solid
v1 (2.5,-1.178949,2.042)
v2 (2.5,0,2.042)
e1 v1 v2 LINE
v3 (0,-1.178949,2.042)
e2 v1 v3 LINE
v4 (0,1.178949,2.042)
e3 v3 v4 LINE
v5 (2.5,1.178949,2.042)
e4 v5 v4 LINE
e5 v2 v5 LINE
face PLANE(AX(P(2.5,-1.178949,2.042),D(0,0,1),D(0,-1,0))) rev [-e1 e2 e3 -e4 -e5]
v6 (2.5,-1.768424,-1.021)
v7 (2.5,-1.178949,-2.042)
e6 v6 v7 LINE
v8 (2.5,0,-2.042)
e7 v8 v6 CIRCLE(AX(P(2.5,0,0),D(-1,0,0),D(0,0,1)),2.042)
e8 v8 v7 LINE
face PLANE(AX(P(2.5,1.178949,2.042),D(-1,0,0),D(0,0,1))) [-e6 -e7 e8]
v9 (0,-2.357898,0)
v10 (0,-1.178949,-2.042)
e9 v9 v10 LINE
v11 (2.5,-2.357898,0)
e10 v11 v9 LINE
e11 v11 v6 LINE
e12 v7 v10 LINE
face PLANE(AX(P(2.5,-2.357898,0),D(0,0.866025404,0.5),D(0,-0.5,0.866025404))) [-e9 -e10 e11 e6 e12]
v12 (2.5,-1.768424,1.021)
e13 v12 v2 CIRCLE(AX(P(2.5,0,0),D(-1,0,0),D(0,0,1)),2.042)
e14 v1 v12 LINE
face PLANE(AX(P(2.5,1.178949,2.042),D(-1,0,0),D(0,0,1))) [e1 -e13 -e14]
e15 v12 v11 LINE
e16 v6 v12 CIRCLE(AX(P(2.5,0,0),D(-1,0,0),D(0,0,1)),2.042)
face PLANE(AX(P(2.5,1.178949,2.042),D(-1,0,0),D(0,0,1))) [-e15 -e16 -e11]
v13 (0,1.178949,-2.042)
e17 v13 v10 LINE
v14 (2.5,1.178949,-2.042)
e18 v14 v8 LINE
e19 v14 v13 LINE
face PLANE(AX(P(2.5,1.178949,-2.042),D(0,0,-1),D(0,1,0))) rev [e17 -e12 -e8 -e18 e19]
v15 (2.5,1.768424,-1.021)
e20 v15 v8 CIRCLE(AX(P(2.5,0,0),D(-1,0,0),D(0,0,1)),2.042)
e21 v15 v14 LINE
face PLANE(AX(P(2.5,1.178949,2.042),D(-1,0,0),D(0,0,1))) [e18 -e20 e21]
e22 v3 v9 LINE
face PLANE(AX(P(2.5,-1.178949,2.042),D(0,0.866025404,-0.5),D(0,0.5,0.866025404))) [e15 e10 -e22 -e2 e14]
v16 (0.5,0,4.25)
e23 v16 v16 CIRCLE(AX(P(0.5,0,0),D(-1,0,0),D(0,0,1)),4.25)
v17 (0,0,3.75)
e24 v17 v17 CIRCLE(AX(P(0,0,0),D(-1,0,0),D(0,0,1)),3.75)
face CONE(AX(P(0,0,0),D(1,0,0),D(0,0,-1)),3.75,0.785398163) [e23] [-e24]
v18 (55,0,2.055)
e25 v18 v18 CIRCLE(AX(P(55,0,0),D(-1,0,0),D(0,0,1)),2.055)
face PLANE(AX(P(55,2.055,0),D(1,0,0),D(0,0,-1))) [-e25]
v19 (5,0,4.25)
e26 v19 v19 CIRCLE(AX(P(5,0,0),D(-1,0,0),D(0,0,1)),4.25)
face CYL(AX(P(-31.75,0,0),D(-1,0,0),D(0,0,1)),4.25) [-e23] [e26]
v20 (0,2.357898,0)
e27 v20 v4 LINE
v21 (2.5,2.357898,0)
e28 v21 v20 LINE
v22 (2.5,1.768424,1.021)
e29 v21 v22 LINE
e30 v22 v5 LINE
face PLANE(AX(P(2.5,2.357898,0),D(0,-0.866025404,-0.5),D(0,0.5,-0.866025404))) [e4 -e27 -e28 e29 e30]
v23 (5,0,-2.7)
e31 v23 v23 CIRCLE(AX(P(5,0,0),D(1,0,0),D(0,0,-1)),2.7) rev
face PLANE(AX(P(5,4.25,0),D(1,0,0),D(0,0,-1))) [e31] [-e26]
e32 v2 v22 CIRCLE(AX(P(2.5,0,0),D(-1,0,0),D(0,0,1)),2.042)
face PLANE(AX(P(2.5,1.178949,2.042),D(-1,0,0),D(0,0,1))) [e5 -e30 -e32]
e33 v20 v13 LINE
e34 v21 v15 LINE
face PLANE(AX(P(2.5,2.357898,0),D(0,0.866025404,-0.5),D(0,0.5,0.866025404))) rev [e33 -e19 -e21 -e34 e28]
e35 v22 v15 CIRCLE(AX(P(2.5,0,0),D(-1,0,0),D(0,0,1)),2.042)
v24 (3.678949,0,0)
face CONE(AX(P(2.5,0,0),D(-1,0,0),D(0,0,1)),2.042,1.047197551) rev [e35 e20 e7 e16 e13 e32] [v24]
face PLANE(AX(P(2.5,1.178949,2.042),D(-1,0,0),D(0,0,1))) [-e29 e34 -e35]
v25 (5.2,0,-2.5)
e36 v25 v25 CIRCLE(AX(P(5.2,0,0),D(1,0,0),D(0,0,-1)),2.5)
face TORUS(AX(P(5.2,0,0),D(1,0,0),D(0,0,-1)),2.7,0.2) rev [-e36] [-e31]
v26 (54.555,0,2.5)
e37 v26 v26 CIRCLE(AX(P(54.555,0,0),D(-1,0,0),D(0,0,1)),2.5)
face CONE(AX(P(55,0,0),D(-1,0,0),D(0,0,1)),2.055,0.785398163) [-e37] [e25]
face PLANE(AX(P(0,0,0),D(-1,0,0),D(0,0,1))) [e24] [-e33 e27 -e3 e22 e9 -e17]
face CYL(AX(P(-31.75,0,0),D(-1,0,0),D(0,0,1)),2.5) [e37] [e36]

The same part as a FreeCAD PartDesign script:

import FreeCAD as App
import Part
import Sketcher
Q = App.Units.Quantity


def edges_at(feature, points):
    """Names of the edges that pass closest to the given points."""
    edges = feature.Shape.Edges
    near = lambda p: min(range(len(edges)), key=lambda i: edges[i].distToShape(Part.Vertex(*p))[0])
    return sorted({f"Edge{near(p) + 1}" for p in points})

doc = App.newDocument("Part")
body = doc.addObject("PartDesign::Body", "Body")

sketch1 = body.newObject("Sketcher::SketchObject", "Sketch")
sketch1.AttachmentSupport = (doc.getObject("XY_Plane"), [""])
sketch1.MapMode = "FlatFace"
sketch1.addGeometry([
    Part.LineSegment(App.Vector(0, 3.8, 0), App.Vector(0, 0, 0)),
    Part.LineSegment(App.Vector(0, 0, 0), App.Vector(55, 0, 0)),
    Part.LineSegment(App.Vector(55, 0, 0), App.Vector(55, 2.1, 0)),
    Part.LineSegment(App.Vector(55, 2.1, 0), App.Vector(54.6, 2.5, 0)),
    Part.LineSegment(App.Vector(54.6, 2.5, 0), App.Vector(5, 2.5, 0)),
    Part.LineSegment(App.Vector(5, 2.5, 0), App.Vector(5, 4.2, 0)),
    Part.LineSegment(App.Vector(5, 4.2, 0), App.Vector(0.5, 4.2, 0)),
    Part.LineSegment(App.Vector(0.5, 4.2, 0), App.Vector(0, 3.8, 0)),
], False)
sketch1.addConstraint([
    Sketcher.Constraint("Coincident", 0, 2, 1, 1),
    Sketcher.Constraint("Coincident", 1, 2, 2, 1),
    Sketcher.Constraint("Coincident", 2, 2, 3, 1),
    Sketcher.Constraint("Coincident", 3, 2, 4, 1),
    Sketcher.Constraint("Coincident", 4, 2, 5, 1),
    Sketcher.Constraint("Coincident", 5, 2, 6, 1),
    Sketcher.Constraint("Coincident", 6, 2, 7, 1),
    Sketcher.Constraint("Coincident", 7, 2, 0, 1),
    Sketcher.Constraint("Vertical", 0),
    Sketcher.Constraint("Horizontal", 1),
    Sketcher.Constraint("Vertical", 2),
    Sketcher.Constraint("Horizontal", 4),
    Sketcher.Constraint("Vertical", 5),
    Sketcher.Constraint("Horizontal", 6),
    Sketcher.Constraint("Coincident", 0, 2, -1, 1),
    Sketcher.Constraint("Perpendicular", 3, 7),
    Sketcher.Constraint("DistanceX", 1, 1, 1, 2, 55.0),
    Sketcher.Constraint("Angle", 3, Q("135 deg")),
    Sketcher.Constraint("DistanceX", 6, 2, 6, 1, 4.5),
    Sketcher.Constraint("DistanceX", -1, 1, 4, 2, 5.0),
    Sketcher.Constraint("DistanceY", 0, 2, 0, 1, 3.75),
    Sketcher.Constraint("DistanceY", 5, 1, 5, 2, 1.75),
    Sketcher.Constraint("DistanceX", 4, 2, 4, 1, 49.555),
])
revolution = body.newObject("PartDesign::Revolution", "Revolution")
revolution.Profile = sketch1
revolution.ReferenceAxis = (sketch1, ["H_Axis"])
revolution.Angle = 360
doc.recompute()

fillet = body.newObject("PartDesign::Fillet", "Fillet")
fillet.Base = (revolution, edges_at(revolution, [(5, 0, -2.5)]))
fillet.Radius = 0.2

sketch2 = body.newObject("Sketcher::SketchObject", "Sketch001")
sketch2.AttachmentSupport = (doc.getObject("XY_Plane"), [""])
sketch2.MapMode = "FlatFace"
sketch2.addGeometry([
    Part.LineSegment(App.Vector(2.5, 2, 0), App.Vector(0, 2, 0)),
    Part.LineSegment(App.Vector(0, 2, 0), App.Vector(0, 0, 0)),
    Part.LineSegment(App.Vector(0, 0, 0), App.Vector(3.7, 0, 0)),
    Part.LineSegment(App.Vector(3.7, 0, 0), App.Vector(2.5, 2, 0)),
], False)
sketch2.addConstraint([
    Sketcher.Constraint("Coincident", 0, 2, 1, 1),
    Sketcher.Constraint("Coincident", 1, 2, 2, 1),
    Sketcher.Constraint("Coincident", 2, 2, 3, 1),
    Sketcher.Constraint("Coincident", 3, 2, 0, 1),
    Sketcher.Constraint("Horizontal", 0),
    Sketcher.Constraint("Vertical", 1),
    Sketcher.Constraint("Horizontal", 2),
    Sketcher.Constraint("Coincident", 1, 2, -1, 1),
    Sketcher.Constraint("Angle", 3, Q("120 deg")),
    Sketcher.Constraint("DistanceX", 0, 2, 0, 1, 2.5),
    Sketcher.Constraint("DistanceY", 1, 2, 1, 1, 2.042),
])
groove = body.newObject("PartDesign::Groove", "Groove")
groove.Profile = sketch2
groove.ReferenceAxis = (sketch2, ["H_Axis"])
groove.Angle = 360

sketch3 = body.newObject("Sketcher::SketchObject", "Sketch002")
sketch3.AttachmentSupport = (doc.getObject("YZ_Plane"), [""])
sketch3.MapMode = "FlatFace"
sketch3.addGeometry([
    Part.LineSegment(App.Vector(2.4, 0, 0), App.Vector(1.2, -2, 0)),
    Part.LineSegment(App.Vector(1.2, -2, 0), App.Vector(-1.2, -2, 0)),
    Part.LineSegment(App.Vector(-1.2, -2, 0), App.Vector(-2.4, 0, 0)),
    Part.LineSegment(App.Vector(-2.4, 0, 0), App.Vector(-1.2, 2, 0)),
    Part.LineSegment(App.Vector(-1.2, 2, 0), App.Vector(1.2, 2, 0)),
    Part.LineSegment(App.Vector(1.2, 2, 0), App.Vector(2.4, 0, 0)),
], False)
sketch3.addConstraint([
    Sketcher.Constraint("Coincident", 0, 2, 1, 1),
    Sketcher.Constraint("Coincident", 1, 2, 2, 1),
    Sketcher.Constraint("Coincident", 2, 2, 3, 1),
    Sketcher.Constraint("Coincident", 3, 2, 4, 1),
    Sketcher.Constraint("Coincident", 4, 2, 5, 1),
    Sketcher.Constraint("Coincident", 5, 2, 0, 1),
    Sketcher.Constraint("Horizontal", 1),
    Sketcher.Constraint("Horizontal", 4),
    Sketcher.Constraint("Symmetric", 0, 2, 3, 2, -1, 1),
    Sketcher.Constraint("Symmetric", 2, 2, 5, 2, -1, 1),
    Sketcher.Constraint("PointOnObject", 2, 2, -1),
    Sketcher.Constraint("Parallel", 2, 5),
    Sketcher.Constraint("Vertical", 1, 2, 3, 2),
    Sketcher.Constraint("Angle", 0, Q("-120 deg")),
    Sketcher.Constraint("DistanceX", 1, 2, 1, 1, 2.357899),
    Sketcher.Constraint("DistanceY", 0, 2, -1, 1, 2.042),
])
pocket1 = body.newObject("PartDesign::Pocket", "Pocket")
pocket1.Profile = sketch3
pocket1.Length = 2.5
pocket1.Reversed = True

doc.recompute()
